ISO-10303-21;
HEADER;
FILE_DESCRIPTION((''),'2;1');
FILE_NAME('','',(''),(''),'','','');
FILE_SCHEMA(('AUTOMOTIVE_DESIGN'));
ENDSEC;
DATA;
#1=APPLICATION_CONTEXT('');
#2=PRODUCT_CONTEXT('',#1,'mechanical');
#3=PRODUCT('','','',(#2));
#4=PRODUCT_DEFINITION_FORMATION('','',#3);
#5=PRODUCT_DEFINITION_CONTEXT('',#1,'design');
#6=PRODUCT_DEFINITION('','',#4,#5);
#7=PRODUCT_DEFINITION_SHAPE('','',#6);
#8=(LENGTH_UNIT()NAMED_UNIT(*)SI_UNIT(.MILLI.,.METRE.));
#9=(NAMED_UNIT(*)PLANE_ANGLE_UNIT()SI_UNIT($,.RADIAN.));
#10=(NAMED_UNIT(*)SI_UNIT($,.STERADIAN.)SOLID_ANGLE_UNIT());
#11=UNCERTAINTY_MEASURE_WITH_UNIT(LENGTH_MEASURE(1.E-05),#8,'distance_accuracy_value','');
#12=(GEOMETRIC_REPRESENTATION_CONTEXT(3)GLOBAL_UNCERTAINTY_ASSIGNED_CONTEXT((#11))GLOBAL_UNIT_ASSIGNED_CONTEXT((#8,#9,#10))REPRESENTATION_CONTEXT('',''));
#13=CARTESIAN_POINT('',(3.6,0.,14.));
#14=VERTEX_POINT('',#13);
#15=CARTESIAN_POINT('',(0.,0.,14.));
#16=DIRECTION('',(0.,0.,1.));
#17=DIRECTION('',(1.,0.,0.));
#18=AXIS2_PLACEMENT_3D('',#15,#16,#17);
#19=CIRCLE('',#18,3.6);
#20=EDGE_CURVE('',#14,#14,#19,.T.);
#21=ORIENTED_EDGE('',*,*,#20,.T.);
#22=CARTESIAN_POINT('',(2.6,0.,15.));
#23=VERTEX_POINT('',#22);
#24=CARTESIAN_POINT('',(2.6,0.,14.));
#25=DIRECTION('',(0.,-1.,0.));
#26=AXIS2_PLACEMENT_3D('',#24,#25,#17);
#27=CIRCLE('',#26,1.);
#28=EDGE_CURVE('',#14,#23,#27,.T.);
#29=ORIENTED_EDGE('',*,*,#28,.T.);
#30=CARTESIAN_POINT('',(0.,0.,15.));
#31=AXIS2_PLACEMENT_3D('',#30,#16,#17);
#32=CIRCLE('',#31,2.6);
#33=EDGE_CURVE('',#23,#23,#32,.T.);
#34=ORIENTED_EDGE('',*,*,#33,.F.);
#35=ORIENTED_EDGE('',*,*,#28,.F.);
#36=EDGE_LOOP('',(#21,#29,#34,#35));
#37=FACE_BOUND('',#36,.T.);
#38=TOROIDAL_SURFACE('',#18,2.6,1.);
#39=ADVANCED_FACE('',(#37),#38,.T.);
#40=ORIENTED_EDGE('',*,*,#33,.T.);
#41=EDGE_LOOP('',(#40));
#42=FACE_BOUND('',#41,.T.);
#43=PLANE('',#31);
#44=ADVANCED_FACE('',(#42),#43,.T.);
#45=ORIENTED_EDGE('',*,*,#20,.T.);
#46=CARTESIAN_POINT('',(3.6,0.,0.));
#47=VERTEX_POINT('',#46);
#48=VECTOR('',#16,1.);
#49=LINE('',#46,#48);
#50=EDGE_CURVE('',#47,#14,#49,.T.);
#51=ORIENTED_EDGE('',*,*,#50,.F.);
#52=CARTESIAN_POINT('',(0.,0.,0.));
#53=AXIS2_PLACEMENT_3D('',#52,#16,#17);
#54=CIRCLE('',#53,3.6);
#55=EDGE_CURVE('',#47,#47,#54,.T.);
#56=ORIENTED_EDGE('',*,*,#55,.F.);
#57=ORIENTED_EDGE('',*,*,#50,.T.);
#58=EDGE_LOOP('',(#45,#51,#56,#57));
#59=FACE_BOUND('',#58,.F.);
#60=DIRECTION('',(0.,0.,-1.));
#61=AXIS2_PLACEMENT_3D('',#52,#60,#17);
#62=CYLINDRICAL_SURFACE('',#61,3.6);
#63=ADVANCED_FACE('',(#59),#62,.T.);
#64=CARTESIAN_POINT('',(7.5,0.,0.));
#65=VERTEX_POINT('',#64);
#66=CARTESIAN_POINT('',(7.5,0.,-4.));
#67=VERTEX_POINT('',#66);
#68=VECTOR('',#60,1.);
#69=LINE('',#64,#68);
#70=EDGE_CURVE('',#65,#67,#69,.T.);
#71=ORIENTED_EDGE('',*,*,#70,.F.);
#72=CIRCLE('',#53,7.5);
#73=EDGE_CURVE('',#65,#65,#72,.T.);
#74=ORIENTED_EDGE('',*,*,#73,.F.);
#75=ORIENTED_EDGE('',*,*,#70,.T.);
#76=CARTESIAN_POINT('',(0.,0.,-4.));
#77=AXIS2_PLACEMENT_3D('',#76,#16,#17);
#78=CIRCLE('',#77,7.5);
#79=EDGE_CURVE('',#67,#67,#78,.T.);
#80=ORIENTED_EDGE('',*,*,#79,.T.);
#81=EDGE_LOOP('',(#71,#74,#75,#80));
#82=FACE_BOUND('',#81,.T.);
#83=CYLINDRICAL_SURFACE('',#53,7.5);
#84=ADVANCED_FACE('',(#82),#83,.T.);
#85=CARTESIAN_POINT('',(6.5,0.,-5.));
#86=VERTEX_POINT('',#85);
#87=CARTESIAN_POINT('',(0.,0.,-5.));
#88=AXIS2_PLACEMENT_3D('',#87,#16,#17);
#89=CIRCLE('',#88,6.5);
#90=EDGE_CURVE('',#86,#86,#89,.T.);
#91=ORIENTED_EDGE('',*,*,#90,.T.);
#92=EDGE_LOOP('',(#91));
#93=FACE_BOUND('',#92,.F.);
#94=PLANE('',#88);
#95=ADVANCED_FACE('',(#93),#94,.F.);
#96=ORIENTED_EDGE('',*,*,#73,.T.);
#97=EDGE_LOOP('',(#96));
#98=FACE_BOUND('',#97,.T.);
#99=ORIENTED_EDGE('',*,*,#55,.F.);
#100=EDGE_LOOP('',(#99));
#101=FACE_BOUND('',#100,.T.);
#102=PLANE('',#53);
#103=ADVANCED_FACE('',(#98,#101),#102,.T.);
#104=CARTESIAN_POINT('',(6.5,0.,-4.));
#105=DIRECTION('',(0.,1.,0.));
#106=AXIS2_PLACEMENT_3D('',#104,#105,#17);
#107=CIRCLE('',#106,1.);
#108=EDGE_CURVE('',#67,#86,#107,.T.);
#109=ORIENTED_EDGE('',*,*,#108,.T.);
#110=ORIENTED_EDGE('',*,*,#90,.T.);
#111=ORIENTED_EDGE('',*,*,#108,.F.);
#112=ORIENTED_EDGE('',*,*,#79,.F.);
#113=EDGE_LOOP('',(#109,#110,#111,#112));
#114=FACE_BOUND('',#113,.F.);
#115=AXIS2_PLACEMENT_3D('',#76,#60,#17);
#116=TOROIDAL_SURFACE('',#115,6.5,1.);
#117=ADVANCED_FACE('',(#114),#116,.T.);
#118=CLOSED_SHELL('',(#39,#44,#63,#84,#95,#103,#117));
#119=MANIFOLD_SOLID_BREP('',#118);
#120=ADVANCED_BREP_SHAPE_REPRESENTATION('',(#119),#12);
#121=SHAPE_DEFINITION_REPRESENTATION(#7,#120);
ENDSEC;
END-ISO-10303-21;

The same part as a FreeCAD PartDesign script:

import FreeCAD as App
import Part
import Sketcher
from FreeCAD import Vector
Q = App.Units.Quantity


def edges_at(feature, points):
    """Names of the edges that pass closest to the given points."""
    edges = feature.Shape.Edges
    near = lambda p: min(range(len(edges)), key=lambda i: edges[i].distToShape(Part.Vertex(*p))[0])
    return sorted({f"Edge{near(p) + 1}" for p in points})

doc = App.newDocument("Part")
body = doc.addObject("PartDesign::Body", "Body")

# Sketch on XY plane
sketch1 = body.newObject("Sketcher::SketchObject", "Sketch")
sketch1.AttachmentSupport = (doc.getObject("XY_Plane"), [""])
sketch1.MapMode = "FlatFace"
sketch1.addGeometry(Part.Circle(Vector(0, 0, 0), Vector(0, 0, 1), 3.6), False)
sketch1.addConstraint(Sketcher.Constraint("Coincident", 0, 3, -1, 1))
sketch1.addConstraint(Sketcher.Constraint("Diameter", 0, Q("7.2 mm")))
pad1 = body.newObject("PartDesign::Pad", "Pad")
pad1.Profile = sketch1
pad1.Length = 15

# Sketch on XY plane
sketch2 = body.newObject("Sketcher::SketchObject", "Sketch001")
sketch2.AttachmentSupport = (doc.getObject("XY_Plane"), [""])
sketch2.MapMode = "FlatFace"
sketch2.addGeometry(Part.Circle(Vector(0, 0, 0), Vector(0, 0, 1), 8), False)
sketch2.addConstraint(Sketcher.Constraint("Coincident", 0, 3, -1, 1))
sketch2.addConstraint(Sketcher.Constraint("Diameter", 0, Q("15 mm")))
pad2 = body.newObject("PartDesign::Pad", "Pad001")
pad2.Profile = sketch2
pad2.Length = 5
pad2.Reversed = True
doc.recompute()

fillet = body.newObject("PartDesign::Fillet", "Fillet")
fillet.Base = (pad2, edges_at(pad2, [(-3.6, 0, 15), (-7.5, 0, -5)]))
fillet.Radius = 1

doc.recompute()
